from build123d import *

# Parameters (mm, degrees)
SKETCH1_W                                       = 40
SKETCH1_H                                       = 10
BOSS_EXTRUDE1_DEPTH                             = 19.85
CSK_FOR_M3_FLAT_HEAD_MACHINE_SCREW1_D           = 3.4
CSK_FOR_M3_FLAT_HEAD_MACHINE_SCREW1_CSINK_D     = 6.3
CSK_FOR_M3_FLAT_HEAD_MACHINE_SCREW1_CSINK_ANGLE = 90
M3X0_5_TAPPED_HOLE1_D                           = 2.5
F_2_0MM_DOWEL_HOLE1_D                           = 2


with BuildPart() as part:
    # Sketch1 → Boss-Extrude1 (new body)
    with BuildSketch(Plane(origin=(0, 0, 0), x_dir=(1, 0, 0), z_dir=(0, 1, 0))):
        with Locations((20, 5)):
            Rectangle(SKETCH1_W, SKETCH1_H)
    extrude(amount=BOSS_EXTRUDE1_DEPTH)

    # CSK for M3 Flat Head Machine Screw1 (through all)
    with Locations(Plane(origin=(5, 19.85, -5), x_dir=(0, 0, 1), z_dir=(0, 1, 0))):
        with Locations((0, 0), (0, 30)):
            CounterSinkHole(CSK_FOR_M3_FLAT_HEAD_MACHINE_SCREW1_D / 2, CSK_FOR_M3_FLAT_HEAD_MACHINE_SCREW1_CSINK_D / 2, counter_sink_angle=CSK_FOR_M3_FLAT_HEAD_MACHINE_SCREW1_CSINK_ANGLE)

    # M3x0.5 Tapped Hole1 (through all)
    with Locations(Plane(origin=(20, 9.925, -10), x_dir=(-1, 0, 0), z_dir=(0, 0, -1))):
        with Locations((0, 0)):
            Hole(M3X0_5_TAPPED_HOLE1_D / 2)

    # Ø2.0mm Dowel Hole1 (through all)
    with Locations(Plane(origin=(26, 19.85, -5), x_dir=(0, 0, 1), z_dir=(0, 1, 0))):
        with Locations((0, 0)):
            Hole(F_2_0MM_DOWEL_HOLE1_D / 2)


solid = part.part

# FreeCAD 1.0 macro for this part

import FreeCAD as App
import Part
import Sketcher
Q = App.Units.Quantity


def add_polygon(sketch, points):
    """Adds a closed chain of lines whose ends are joined by coincident constraints."""
    first, n = sketch.GeometryCount, len(points)
    for a, b in zip(points, points[1:] + points[:1]):
        sketch.addGeometry(Part.LineSegment(App.Vector(*a, 0), App.Vector(*b, 0)), False)
    for i in range(n):
        sketch.addConstraint(Sketcher.Constraint("Coincident", first + i, 2, first + (i + 1) % n, 1))

doc = App.newDocument("Part")
body = doc.addObject("PartDesign::Body", "Body")

# Sketch on XZ plane
sketch1 = body.newObject("Sketcher::SketchObject", "Sketch")
sketch1.AttachmentSupport = (doc.getObject("XZ_Plane"), [""])
sketch1.MapMode = "FlatFace"
add_polygon(sketch1, [(0, -10), (0, 0), (40, 0), (40, -10)])  # lines 0-3
sketch1.addConstraint([
    Sketcher.Constraint("Vertical", 0),
    Sketcher.Constraint("Horizontal", 1),
    Sketcher.Constraint("Vertical", 2),
    Sketcher.Constraint("Horizontal", 3),
    Sketcher.Constraint("Coincident", 0, 2, -1, 1),
    Sketcher.Constraint("DistanceX", 1, 1, 1, 2, Q("40 mm")),
    Sketcher.Constraint("DistanceY", 0, 1, 0, 2, Q("10 mm")),
])
pad1 = body.newObject("PartDesign::Pad", "Pad")
pad1.Profile = sketch1
pad1.Length = 19.85
pad1.Reversed = True

# Sketch on XZ plane
sketch2 = body.newObject("Sketcher::SketchObject", "Sketch001")
sketch2.AttachmentSupport = (doc.getObject("XZ_Plane"), [""])
sketch2.MapMode = "FlatFace"
sketch2.AttachmentOffset = App.Placement(App.Vector(0, 0, -19.85), App.Rotation())
sketch2.addGeometry([
    Part.Circle(App.Vector(5, -5, 0), App.Vector(0, 0, 1), 1.7),
    Part.Circle(App.Vector(35, -5, 0), App.Vector(0, 0, 1), 1.7),
], False)
sketch2.addConstraint([
    Sketcher.Constraint("Equal", 0, 1),
    Sketcher.Constraint("Horizontal", 0, 3, 1, 3),
    Sketcher.Constraint("Diameter", 0, Q("3.4 mm")),
    Sketcher.Constraint("DistanceX", -1, 1, 0, 3, Q("5 mm")),
    Sketcher.Constraint("DistanceY", 0, 3, -1, 1, Q("5 mm")),
    Sketcher.Constraint("DistanceX", -1, 1, 1, 3, Q("35 mm")),
])
doc.recompute()
hole = body.newObject("PartDesign::Hole", "Hole")
hole.Profile = sketch2
hole.ThreadType = "None"
hole.Diameter = 3.4
hole.DepthType = "ThroughAll"
hole.HoleCutType = "Countersink"
hole.HoleCutDiameter = 6.3
hole.HoleCutCountersinkAngle = 90
hole.Reversed = True

# Sketch on XY plane
sketch3 = body.newObject("Sketcher::SketchObject", "Sketch002")
sketch3.AttachmentSupport = (doc.getObject("XY_Plane"), [""])
sketch3.MapMode = "FlatFace"
sketch3.AttachmentOffset = App.Placement(App.Vector(0, 0, -10), App.Rotation())
sketch3.addGeometry(Part.Circle(App.Vector(20, 9.925, 0), App.Vector(0, 0, 1), 1.25), False)
sketch3.addConstraint([
    Sketcher.Constraint("Diameter", 0, Q("2.5 mm")),
    Sketcher.Constraint("DistanceX", -1, 1, 0, 3, Q("20 mm")),
    Sketcher.Constraint("DistanceY", -1, 1, 0, 3, Q("9.925 mm")),
])
doc.recompute()
hole2 = body.newObject("PartDesign::Hole", "Hole001")
hole2.Profile = sketch3
hole2.ThreadType = "None"
hole2.Diameter = 2.5
hole2.DepthType = "ThroughAll"
hole2.Reversed = True

# Sketch on XZ plane
sketch4 = body.newObject("Sketcher::SketchObject", "Sketch003")
sketch4.AttachmentSupport = (doc.getObject("XZ_Plane"), [""])
sketch4.MapMode = "FlatFace"
sketch4.AttachmentOffset = App.Placement(App.Vector(0, 0, -19.85), App.Rotation())
sketch4.addGeometry(Part.Circle(App.Vector(26, -5, 0), App.Vector(0, 0, 1), 1), False)
sketch4.addConstraint([
    Sketcher.Constraint("Diameter", 0, Q("2 mm")),
    Sketcher.Constraint("DistanceX", -1, 1, 0, 3, Q("26 mm")),
    Sketcher.Constraint("DistanceY", 0, 3, -1, 1, Q("5 mm")),
])
doc.recompute()
hole3 = body.newObject("PartDesign::Hole", "Hole002")
hole3.Profile = sketch4
hole3.ThreadType = "None"
hole3.Diameter = 2
hole3.DepthType = "ThroughAll"
hole3.Reversed = True

doc.recompute()
